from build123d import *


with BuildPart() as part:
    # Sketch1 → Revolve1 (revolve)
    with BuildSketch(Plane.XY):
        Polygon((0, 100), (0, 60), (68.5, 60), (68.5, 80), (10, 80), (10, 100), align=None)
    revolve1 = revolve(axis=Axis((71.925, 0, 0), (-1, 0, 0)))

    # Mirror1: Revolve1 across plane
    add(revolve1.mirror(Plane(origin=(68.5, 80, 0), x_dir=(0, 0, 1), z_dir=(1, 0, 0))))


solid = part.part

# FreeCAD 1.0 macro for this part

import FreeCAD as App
import Part
import Sketcher
Q = App.Units.Quantity


def add_polygon(sketch, points):
    """Adds a closed chain of lines whose ends are joined by coincident constraints."""
    first, n = sketch.GeometryCount, len(points)
    for a, b in zip(points, points[1:] + points[:1]):
        sketch.addGeometry(Part.LineSegment(App.Vector(*a, 0), App.Vector(*b, 0)), False)
    for i in range(n):
        sketch.addConstraint(Sketcher.Constraint("Coincident", first + i, 2, first + (i + 1) % n, 1))

doc = App.newDocument("Part")
body = doc.addObject("PartDesign::Body", "Body")

# Sketch on XY plane
sketch1 = body.newObject("Sketcher::SketchObject", "Sketch")
sketch1.AttachmentSupport = (doc.getObject("XY_Plane"), [""])
sketch1.MapMode = "FlatFace"
add_polygon(sketch1, [(0, 100), (0, 60), (68.5, 60), (68.5, 80), (10, 80), (10, 100)])  # lines 0-5
sketch1.addConstraint([
    Sketcher.Constraint("Vertical", 0),
    Sketcher.Constraint("Horizontal", 1),
    Sketcher.Constraint("Vertical", 2),
    Sketcher.Constraint("Horizontal", 3),
    Sketcher.Constraint("Vertical", 4),
    Sketcher.Constraint("Horizontal", 5),
    Sketcher.Constraint("PointOnObject", 0, 2, -2),
    Sketcher.Constraint("Equal", 2, 4),
    Sketcher.Constraint("DistanceX", 5, 2, 5, 1, Q("10 mm")),
    Sketcher.Constraint("DistanceY", 0, 2, 0, 1, Q("40 mm")),
    Sketcher.Constraint("DistanceX", 1, 1, 1, 2, Q("68.5 mm")),
    Sketcher.Constraint("DistanceY", -1, 1, 0, 2, Q("60 mm")),
])
revolution = body.newObject("PartDesign::Revolution", "Revolution")
revolution.Profile = sketch1
revolution.ReferenceAxis = (sketch1, ["H_Axis"])
revolution.Angle = 360
doc.recompute()

datumplane = body.newObject("PartDesign::Plane", "DatumPlane")
datumplane.AttachmentSupport = (doc.getObject("YZ_Plane"), [""])
datumplane.MapMode = "FlatFace"
datumplane.AttachmentOffset = App.Placement(App.Vector(0, 0, 68.5), App.Rotation())
mirrored = body.newObject("PartDesign::Mirrored", "Mirrored")
mirrored.Originals = [revolution]
mirrored.MirrorPlane = (datumplane, [""])
body.Tip = mirrored

doc.recompute()
